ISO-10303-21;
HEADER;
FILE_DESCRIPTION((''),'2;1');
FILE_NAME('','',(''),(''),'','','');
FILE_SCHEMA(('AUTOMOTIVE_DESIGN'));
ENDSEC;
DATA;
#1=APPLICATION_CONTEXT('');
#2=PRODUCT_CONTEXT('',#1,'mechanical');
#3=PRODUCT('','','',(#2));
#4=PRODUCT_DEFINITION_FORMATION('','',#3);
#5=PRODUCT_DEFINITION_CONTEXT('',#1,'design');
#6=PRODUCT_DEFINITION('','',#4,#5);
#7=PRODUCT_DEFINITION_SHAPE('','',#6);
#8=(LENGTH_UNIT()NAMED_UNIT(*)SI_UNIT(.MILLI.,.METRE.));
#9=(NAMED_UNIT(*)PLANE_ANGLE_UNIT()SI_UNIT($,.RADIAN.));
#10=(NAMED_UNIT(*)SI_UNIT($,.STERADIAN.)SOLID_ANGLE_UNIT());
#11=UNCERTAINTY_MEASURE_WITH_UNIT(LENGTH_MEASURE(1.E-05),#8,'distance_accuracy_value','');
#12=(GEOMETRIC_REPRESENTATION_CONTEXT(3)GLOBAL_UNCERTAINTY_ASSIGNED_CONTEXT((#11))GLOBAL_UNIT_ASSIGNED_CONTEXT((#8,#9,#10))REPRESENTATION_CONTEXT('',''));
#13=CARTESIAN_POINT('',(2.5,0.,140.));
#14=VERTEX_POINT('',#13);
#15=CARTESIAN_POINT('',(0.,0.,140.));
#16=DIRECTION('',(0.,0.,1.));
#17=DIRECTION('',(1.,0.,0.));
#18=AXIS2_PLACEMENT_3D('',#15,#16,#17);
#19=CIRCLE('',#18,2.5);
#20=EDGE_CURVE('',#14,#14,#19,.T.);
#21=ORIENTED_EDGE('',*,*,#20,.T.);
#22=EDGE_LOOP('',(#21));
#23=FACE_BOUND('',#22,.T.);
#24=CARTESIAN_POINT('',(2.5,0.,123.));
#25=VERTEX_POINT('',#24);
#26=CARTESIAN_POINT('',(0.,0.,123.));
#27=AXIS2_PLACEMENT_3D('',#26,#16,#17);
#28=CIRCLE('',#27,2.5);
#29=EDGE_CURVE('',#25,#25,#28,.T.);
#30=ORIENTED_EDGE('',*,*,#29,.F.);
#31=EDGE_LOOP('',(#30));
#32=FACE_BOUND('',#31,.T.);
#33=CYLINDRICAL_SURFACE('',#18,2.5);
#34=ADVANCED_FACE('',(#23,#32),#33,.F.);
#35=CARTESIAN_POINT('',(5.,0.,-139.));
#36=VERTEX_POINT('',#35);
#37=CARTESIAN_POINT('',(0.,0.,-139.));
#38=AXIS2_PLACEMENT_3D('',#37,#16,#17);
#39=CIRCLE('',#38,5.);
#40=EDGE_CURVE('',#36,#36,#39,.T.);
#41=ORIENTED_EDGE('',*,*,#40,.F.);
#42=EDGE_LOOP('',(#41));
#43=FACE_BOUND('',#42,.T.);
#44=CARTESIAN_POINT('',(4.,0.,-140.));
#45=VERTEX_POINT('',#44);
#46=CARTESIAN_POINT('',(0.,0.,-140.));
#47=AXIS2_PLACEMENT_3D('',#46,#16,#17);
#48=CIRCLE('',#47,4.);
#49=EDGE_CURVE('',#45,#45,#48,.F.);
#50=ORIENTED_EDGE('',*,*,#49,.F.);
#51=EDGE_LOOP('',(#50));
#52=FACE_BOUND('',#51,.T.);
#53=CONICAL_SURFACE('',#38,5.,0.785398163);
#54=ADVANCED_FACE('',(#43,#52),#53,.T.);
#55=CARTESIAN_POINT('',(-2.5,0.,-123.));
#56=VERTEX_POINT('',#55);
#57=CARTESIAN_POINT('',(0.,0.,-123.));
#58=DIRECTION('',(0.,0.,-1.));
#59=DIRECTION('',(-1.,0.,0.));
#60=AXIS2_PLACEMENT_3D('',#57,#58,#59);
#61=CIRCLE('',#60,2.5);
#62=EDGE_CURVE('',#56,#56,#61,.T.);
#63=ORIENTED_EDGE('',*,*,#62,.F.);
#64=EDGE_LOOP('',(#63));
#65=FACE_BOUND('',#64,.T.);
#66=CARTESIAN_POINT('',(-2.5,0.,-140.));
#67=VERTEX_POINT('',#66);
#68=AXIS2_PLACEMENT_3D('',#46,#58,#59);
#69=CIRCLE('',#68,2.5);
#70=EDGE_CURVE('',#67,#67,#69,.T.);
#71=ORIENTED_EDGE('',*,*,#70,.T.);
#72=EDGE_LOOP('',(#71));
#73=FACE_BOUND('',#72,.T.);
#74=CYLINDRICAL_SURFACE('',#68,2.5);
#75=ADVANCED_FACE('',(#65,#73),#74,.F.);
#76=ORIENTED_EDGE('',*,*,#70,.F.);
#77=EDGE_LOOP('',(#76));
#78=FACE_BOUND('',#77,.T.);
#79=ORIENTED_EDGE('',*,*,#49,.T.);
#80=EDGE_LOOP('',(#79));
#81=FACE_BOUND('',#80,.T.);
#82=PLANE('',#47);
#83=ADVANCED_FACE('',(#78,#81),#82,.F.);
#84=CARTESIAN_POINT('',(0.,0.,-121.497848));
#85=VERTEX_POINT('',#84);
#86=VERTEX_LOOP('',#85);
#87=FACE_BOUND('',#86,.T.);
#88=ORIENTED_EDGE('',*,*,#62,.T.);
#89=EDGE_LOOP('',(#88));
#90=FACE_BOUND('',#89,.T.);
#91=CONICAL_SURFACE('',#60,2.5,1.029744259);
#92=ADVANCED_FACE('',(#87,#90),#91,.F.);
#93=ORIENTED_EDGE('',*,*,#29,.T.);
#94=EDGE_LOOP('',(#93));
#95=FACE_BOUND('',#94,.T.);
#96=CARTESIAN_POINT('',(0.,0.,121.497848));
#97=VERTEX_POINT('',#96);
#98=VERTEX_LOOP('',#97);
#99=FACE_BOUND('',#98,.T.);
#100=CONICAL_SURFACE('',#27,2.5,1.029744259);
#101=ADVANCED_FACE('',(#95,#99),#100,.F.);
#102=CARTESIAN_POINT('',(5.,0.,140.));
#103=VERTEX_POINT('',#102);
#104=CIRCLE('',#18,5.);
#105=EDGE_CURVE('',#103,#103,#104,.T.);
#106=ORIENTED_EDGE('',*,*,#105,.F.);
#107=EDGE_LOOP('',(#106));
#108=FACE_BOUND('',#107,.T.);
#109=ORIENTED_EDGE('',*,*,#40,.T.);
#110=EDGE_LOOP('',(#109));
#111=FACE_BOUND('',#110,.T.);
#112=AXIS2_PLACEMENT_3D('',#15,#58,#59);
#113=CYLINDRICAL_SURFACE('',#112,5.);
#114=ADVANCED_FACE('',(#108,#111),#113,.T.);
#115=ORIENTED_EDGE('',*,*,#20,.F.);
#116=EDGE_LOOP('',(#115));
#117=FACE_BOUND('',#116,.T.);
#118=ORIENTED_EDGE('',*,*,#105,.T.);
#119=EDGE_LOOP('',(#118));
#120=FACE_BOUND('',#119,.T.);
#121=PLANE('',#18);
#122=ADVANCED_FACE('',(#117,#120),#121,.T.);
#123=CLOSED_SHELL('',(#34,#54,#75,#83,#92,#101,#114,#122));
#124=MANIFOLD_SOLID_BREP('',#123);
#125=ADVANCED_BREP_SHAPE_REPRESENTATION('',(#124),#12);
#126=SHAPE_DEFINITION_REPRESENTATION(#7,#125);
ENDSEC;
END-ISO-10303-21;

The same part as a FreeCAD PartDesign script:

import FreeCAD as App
import Part
import Sketcher

V = App.Vector
Q = App.Units.Quantity


def edges_at(feature, points):
    """Names of the edges that pass closest to the given points."""
    edges = feature.Shape.Edges
    near = lambda p: min(range(len(edges)), key=lambda i: edges[i].distToShape(Part.Vertex(*p))[0])
    return sorted({f"Edge{near(p) + 1}" for p in points})

doc = App.newDocument("Part")
body = doc.addObject("PartDesign::Body", "Body")

sketch1 = doc.addObject("Sketcher::SketchObject", "Sketch")
body.addObject(sketch1)
sketch1.AttachmentSupport = (doc.XY_Plane, [""])
sketch1.MapMode = "FlatFace"
sketch1.addGeometry(Part.Circle(V(0, 0, 0), V(0, 0, 1), 5), False)
sketch1.addConstraint(Sketcher.Constraint("Coincident", 0, 3, -1, 1))
sketch1.addConstraint(Sketcher.Constraint("Diameter", 0, Q("10 mm")))
pad1 = doc.addObject("PartDesign::Pad", "Pad")
body.addObject(pad1)
pad1.Profile = sketch1
pad1.Length = 280
pad1.Midplane = True

sketch2 = doc.addObject("Sketcher::SketchObject", "Sketch001")
body.addObject(sketch2)
sketch2.AttachmentSupport = (doc.XY_Plane, [""])
sketch2.MapMode = "FlatFace"
sketch2.AttachmentOffset = App.Placement(V(0, 0, 140), App.Rotation())
sketch2.addGeometry(Part.Circle(V(0, 0, 0), V(0, 0, 1), 2.5), False)
sketch2.addConstraint(Sketcher.Constraint("Coincident", 0, 3, -1, 1))
sketch2.addConstraint(Sketcher.Constraint("Diameter", 0, Q("5 mm")))
doc.recompute()
hole = doc.addObject("PartDesign::Hole", "Hole")
body.addObject(hole)
hole.Profile = sketch2
hole.ThreadType = "None"
hole.Diameter = 5
hole.DepthType = "Dimension"
hole.Depth = 17
hole.DrillPoint = "Angled"
hole.DrillPointAngle = 118

sketch3 = doc.addObject("Sketcher::SketchObject", "Sketch002")
body.addObject(sketch3)
sketch3.AttachmentSupport = (doc.XY_Plane, [""])
sketch3.MapMode = "FlatFace"
sketch3.AttachmentOffset = App.Placement(V(0, 0, -140), App.Rotation())
sketch3.addGeometry(Part.Circle(V(0, 0, 0), V(0, 0, 1), 2.5), False)
sketch3.addConstraint(Sketcher.Constraint("Coincident", 0, 3, -1, 1))
sketch3.addConstraint(Sketcher.Constraint("Diameter", 0, Q("5 mm")))
doc.recompute()
hole2 = doc.addObject("PartDesign::Hole", "Hole001")
body.addObject(hole2)
hole2.Profile = sketch3
hole2.ThreadType = "None"
hole2.Diameter = 5
hole2.DepthType = "Dimension"
hole2.Depth = 17
hole2.DrillPoint = "Angled"
hole2.DrillPointAngle = 118
hole2.Reversed = True
doc.recompute()

chamfer = doc.addObject("PartDesign::Chamfer", "Chamfer")
body.addObject(chamfer)
chamfer.Base = (hole2, edges_at(hole2, [(-5, 0, -140)]))
chamfer.Size = 1

doc.recompute()
